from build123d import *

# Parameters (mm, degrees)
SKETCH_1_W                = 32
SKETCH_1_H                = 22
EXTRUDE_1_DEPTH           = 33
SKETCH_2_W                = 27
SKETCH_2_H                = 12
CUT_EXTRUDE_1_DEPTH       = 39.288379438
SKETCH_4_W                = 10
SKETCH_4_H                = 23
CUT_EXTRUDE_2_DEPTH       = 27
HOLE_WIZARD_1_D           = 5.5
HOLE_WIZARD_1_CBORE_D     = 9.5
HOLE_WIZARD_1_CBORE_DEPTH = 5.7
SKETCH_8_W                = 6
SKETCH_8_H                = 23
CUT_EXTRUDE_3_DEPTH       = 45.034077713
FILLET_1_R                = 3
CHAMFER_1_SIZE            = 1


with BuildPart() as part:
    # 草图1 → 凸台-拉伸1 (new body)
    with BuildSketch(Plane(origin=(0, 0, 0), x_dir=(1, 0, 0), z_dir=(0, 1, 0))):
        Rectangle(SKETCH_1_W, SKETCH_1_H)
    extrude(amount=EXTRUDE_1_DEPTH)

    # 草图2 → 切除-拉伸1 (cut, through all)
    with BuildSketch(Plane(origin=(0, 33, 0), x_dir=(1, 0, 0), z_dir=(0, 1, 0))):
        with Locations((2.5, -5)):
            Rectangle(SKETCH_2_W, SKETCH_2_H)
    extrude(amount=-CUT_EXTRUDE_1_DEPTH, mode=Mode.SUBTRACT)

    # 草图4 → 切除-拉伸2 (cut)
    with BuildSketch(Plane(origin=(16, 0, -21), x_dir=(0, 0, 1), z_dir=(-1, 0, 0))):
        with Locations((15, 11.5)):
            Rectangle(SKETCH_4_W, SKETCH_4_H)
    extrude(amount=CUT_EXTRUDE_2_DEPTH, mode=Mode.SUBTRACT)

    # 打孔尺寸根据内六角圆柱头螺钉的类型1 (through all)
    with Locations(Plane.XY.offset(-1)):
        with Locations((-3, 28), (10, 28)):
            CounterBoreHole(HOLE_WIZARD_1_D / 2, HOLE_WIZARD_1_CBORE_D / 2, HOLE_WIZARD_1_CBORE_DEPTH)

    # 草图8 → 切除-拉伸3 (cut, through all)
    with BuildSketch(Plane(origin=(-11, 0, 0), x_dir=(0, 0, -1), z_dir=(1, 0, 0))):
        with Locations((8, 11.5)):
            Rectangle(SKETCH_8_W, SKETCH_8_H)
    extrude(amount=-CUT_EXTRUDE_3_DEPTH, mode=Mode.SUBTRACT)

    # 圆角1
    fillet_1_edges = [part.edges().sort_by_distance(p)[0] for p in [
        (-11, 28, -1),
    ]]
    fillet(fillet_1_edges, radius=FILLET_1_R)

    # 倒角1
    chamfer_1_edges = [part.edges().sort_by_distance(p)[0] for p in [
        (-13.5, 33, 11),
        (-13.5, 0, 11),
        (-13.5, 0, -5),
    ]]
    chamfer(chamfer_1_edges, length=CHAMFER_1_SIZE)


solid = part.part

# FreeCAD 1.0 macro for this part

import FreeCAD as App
import Part
import Sketcher

V = App.Vector


def edges_at(feature, points):
    """Names of the edges that pass closest to the given points."""
    edges = feature.Shape.Edges
    near = lambda p: min(range(len(edges)), key=lambda i: edges[i].distToShape(Part.Vertex(*p))[0])
    return sorted({f"Edge{near(p) + 1}" for p in points})

doc = App.newDocument("Part")
body = doc.addObject("PartDesign::Body", "Body")

sketch1 = doc.addObject("Sketcher::SketchObject", "Sketch")
body.addObject(sketch1)
sketch1.AttachmentSupport = (doc.XZ_Plane, [""])
sketch1.MapMode = "FlatFace"
sketch1.addGeometry([
    Part.LineSegment(V(-16, -11, 0), V(-16, 11, 0)),
    Part.LineSegment(V(-16, 11, 0), V(16, 11, 0)),
    Part.LineSegment(V(16, 11, 0), V(16, -11, 0)),
    Part.LineSegment(V(16, -11, 0), V(-16, -11, 0)),
], False)
sketch1.addConstraint([
    Sketcher.Constraint("Coincident", 0, 2, 1, 1),
    Sketcher.Constraint("Coincident", 1, 2, 2, 1),
    Sketcher.Constraint("Coincident", 2, 2, 3, 1),
    Sketcher.Constraint("Coincident", 3, 2, 0, 1),
    Sketcher.Constraint("Vertical", 0),
    Sketcher.Constraint("Horizontal", 1),
    Sketcher.Constraint("Vertical", 2),
    Sketcher.Constraint("Horizontal", 3),
    Sketcher.Constraint("Symmetric", 0, 2, 2, 2, -1, 1),
    Sketcher.Constraint("DistanceX", 1, 1, 1, 2, 32.0),
    Sketcher.Constraint("DistanceY", 0, 1, 0, 2, 22.0),
])
pad1 = doc.addObject("PartDesign::Pad", "Pad")
body.addObject(pad1)
pad1.Profile = sketch1
pad1.Length = 33
pad1.Reversed = True

sketch2 = doc.addObject("Sketcher::SketchObject", "Sketch001")
body.addObject(sketch2)
sketch2.AttachmentSupport = (doc.XZ_Plane, [""])
sketch2.MapMode = "FlatFace"
sketch2.AttachmentOffset = App.Placement(V(0, 0, -33), App.Rotation())
sketch2.addGeometry([
    Part.LineSegment(V(-11, -1, 0), V(-11, 11, 0)),
    Part.LineSegment(V(-11, 11, 0), V(16, 11, 0)),
    Part.LineSegment(V(16, 11, 0), V(16, -1, 0)),
    Part.LineSegment(V(16, -1, 0), V(-11, -1, 0)),
], False)
sketch2.addConstraint([
    Sketcher.Constraint("Coincident", 0, 2, 1, 1),
    Sketcher.Constraint("Coincident", 1, 2, 2, 1),
    Sketcher.Constraint("Coincident", 2, 2, 3, 1),
    Sketcher.Constraint("Coincident", 3, 2, 0, 1),
    Sketcher.Constraint("Vertical", 0),
    Sketcher.Constraint("Horizontal", 1),
    Sketcher.Constraint("Vertical", 2),
    Sketcher.Constraint("Horizontal", 3),
    Sketcher.Constraint("DistanceX", 1, 1, 1, 2, 27.0),
    Sketcher.Constraint("DistanceY", 0, 1, 0, 2, 12.0),
    Sketcher.Constraint("DistanceX", 0, 2, -1, 1, 11.0),
    Sketcher.Constraint("DistanceY", -1, 1, 0, 2, 11.0),
])
pocket1 = doc.addObject("PartDesign::Pocket", "Pocket")
body.addObject(pocket1)
pocket1.Profile = sketch2
pocket1.Type = "ThroughAll"
pocket1.Reversed = True

sketch3 = doc.addObject("Sketcher::SketchObject", "Sketch002")
body.addObject(sketch3)
sketch3.AttachmentSupport = (doc.YZ_Plane, [""])
sketch3.MapMode = "FlatFace"
sketch3.AttachmentOffset = App.Placement(V(0, 0, 16), App.Rotation())
sketch3.addGeometry([
    Part.LineSegment(V(23, -11, 0), V(0, -11, 0)),
    Part.LineSegment(V(0, -11, 0), V(0, -1, 0)),
    Part.LineSegment(V(0, -1, 0), V(23, -1, 0)),
    Part.LineSegment(V(23, -1, 0), V(23, -11, 0)),
], False)
sketch3.addConstraint([
    Sketcher.Constraint("Coincident", 0, 2, 1, 1),
    Sketcher.Constraint("Coincident", 1, 2, 2, 1),
    Sketcher.Constraint("Coincident", 2, 2, 3, 1),
    Sketcher.Constraint("Coincident", 3, 2, 0, 1),
    Sketcher.Constraint("Horizontal", 0),
    Sketcher.Constraint("Vertical", 1),
    Sketcher.Constraint("Horizontal", 2),
    Sketcher.Constraint("Vertical", 3),
    Sketcher.Constraint("PointOnObject", 0, 2, -2),
    Sketcher.Constraint("DistanceX", 0, 2, 0, 1, 23.0),
    Sketcher.Constraint("DistanceY", 1, 1, 1, 2, 10.0),
    Sketcher.Constraint("DistanceY", 0, 2, -1, 1, 11.0),
])
pocket2 = doc.addObject("PartDesign::Pocket", "Pocket001")
body.addObject(pocket2)
pocket2.Profile = sketch3
pocket2.Length = 27

sketch4 = doc.addObject("Sketcher::SketchObject", "Sketch003")
body.addObject(sketch4)
sketch4.AttachmentSupport = (doc.XY_Plane, [""])
sketch4.MapMode = "FlatFace"
sketch4.AttachmentOffset = App.Placement(V(0, 0, -1), App.Rotation())
sketch4.addGeometry([
    Part.Circle(V(-3, 28, 0), V(0, 0, 1), 2.8),
    Part.Circle(V(10, 28, 0), V(0, 0, 1), 2.8),
], False)
sketch4.addConstraint([
    Sketcher.Constraint("Equal", 0, 1),
    Sketcher.Constraint("Horizontal", 0, 3, 1, 3),
    Sketcher.Constraint("Diameter", 0, 5.5),
    Sketcher.Constraint("DistanceX", 0, 3, -1, 1, 3.0),
    Sketcher.Constraint("DistanceY", -1, 1, 0, 3, 28.0),
    Sketcher.Constraint("DistanceX", -1, 1, 1, 3, 10.0),
])
doc.recompute()
hole = doc.addObject("PartDesign::Hole", "Hole")
body.addObject(hole)
hole.Profile = sketch4
hole.ThreadType = "None"
hole.Diameter = 5.5
hole.DepthType = "ThroughAll"
hole.HoleCutType = "Counterbore"
hole.HoleCutDiameter = 9.5
hole.HoleCutDepth = 5.7

sketch5 = doc.addObject("Sketcher::SketchObject", "Sketch004")
body.addObject(sketch5)
sketch5.AttachmentSupport = (doc.YZ_Plane, [""])
sketch5.MapMode = "FlatFace"
sketch5.AttachmentOffset = App.Placement(V(0, 0, -11), App.Rotation())
sketch5.addGeometry([
    Part.LineSegment(V(23, -5, 0), V(0, -5, 0)),
    Part.LineSegment(V(0, -5, 0), V(0, -11, 0)),
    Part.LineSegment(V(0, -11, 0), V(23, -11, 0)),
    Part.LineSegment(V(23, -11, 0), V(23, -5, 0)),
], False)
sketch5.addConstraint([
    Sketcher.Constraint("Coincident", 0, 2, 1, 1),
    Sketcher.Constraint("Coincident", 1, 2, 2, 1),
    Sketcher.Constraint("Coincident", 2, 2, 3, 1),
    Sketcher.Constraint("Coincident", 3, 2, 0, 1),
    Sketcher.Constraint("Horizontal", 0),
    Sketcher.Constraint("Vertical", 1),
    Sketcher.Constraint("Horizontal", 2),
    Sketcher.Constraint("Vertical", 3),
    Sketcher.Constraint("PointOnObject", 0, 2, -2),
    Sketcher.Constraint("DistanceX", 0, 2, 0, 1, 23.0),
    Sketcher.Constraint("DistanceY", 1, 2, 1, 1, 6.0),
    Sketcher.Constraint("DistanceY", 0, 2, -1, 1, 5.0),
])
pocket3 = doc.addObject("PartDesign::Pocket", "Pocket002")
body.addObject(pocket3)
pocket3.Profile = sketch5
pocket3.Type = "ThroughAll"
doc.recompute()

fillet = doc.addObject("PartDesign::Fillet", "Fillet")
body.addObject(fillet)
fillet.Base = (pocket3, edges_at(pocket3, [(-11, 28, -1)]))
fillet.Radius = 3
doc.recompute()

chamfer = doc.addObject("PartDesign::Chamfer", "Chamfer")
body.addObject(chamfer)
chamfer.Base = (fillet, edges_at(fillet, [(-13.5, 33, 11), (-13.5, 0, 11), (-13.5, 0, -5)]))
chamfer.Size = 1

doc.recompute()
